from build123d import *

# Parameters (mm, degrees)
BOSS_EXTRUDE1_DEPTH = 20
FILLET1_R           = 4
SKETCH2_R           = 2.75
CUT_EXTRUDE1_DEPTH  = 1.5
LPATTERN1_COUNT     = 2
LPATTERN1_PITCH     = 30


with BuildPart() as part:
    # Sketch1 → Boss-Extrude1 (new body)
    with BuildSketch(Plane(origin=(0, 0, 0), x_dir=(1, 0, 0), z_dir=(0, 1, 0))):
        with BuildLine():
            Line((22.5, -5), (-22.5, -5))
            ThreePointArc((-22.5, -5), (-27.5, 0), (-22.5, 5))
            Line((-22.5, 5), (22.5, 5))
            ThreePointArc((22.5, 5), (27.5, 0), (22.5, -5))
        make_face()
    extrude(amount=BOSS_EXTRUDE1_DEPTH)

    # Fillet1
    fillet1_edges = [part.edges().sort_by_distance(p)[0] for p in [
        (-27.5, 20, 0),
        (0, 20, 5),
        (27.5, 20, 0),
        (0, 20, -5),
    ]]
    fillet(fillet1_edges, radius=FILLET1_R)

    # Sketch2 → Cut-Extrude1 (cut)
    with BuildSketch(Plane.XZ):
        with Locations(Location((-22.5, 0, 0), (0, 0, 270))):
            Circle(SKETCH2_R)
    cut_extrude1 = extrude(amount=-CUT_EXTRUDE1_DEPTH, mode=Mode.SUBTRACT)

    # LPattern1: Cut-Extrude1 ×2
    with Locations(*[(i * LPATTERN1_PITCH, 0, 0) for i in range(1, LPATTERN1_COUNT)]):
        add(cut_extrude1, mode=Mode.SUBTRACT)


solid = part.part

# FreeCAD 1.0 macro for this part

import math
import FreeCAD as App
import Part
import Sketcher

V = App.Vector
Q = App.Units.Quantity


def edges_at(feature, points):
    """Names of the edges that pass closest to the given points."""
    edges = feature.Shape.Edges
    near = lambda p: min(range(len(edges)), key=lambda i: edges[i].distToShape(Part.Vertex(*p))[0])
    return sorted({f"Edge{near(p) + 1}" for p in points})

doc = App.newDocument("Part")
params = doc.addObject("Spreadsheet::Sheet", "Params")
for row, (alias, value) in enumerate([
    ("sketch1_radius", "5 mm"),
    ("sketch1_width", "45 mm"),
    ("pad1_length", "20 mm"),
    ("fillet_radius", "4 mm"),
    ("sketch2_diameter", "5.5 mm"),
    ("pocket1_length", "1.5 mm"),
    ("linearpattern_pitch", "30 mm"),
], start=1):
    params.set(f"A{row}", alias)
    params.set(f"B{row}", "=" + value)
    params.setAlias(f"B{row}", alias)

body = doc.addObject("PartDesign::Body", "Body")

# Sketch on XZ plane
sketch1 = body.newObject("Sketcher::SketchObject", "Sketch")
sketch1.AttachmentSupport = (doc.getObject("XZ_Plane"), [""])
sketch1.MapMode = "FlatFace"
sketch1.addGeometry([
    Part.LineSegment(V(-22, 5, 0), V(22, 5, 0)),
    Part.ArcOfCircle(Part.Circle(V(22, 0, 0), V(0, 0, 1), 5), math.radians(-90), math.radians(90)),
    Part.LineSegment(V(22, -5, 0), V(-22, -5, 0)),
    Part.ArcOfCircle(Part.Circle(V(-22, 0, 0), V(0, 0, 1), 5), math.radians(90), math.radians(270)),
], False)
sketch1.addConstraint([
    Sketcher.Constraint("Tangent", 0, 2, 1, 2),
    Sketcher.Constraint("Tangent", 1, 1, 2, 1),
    Sketcher.Constraint("Tangent", 2, 2, 3, 2),
    Sketcher.Constraint("Tangent", 3, 1, 0, 1),
    Sketcher.Constraint("Horizontal", 0),
    Sketcher.Constraint("Horizontal", 2),
    Sketcher.Constraint("Symmetric", 1, 3, 3, 3, -1, 1),
    Sketcher.Constraint("Radius", 1, Q("5 mm")),
    Sketcher.Constraint("DistanceX", 0, 1, 0, 2, Q("45 mm")),
])
sketch1.setExpression("Constraints[7]", "Params.sketch1_radius")
sketch1.setExpression("Constraints[8]", "Params.sketch1_width")
pad1 = body.newObject("PartDesign::Pad", "Pad")
pad1.Profile = sketch1
pad1.setExpression("Length", "Params.pad1_length")
pad1.Reversed = True
doc.recompute()

fillet = body.newObject("PartDesign::Fillet", "Fillet")
fillet.Base = (pad1, edges_at(pad1, [
    (-27.5, 20, 0),
    (0, 20, 5),
    (27.5, 20, 0),
    (0, 20, -5),
]))
fillet.setExpression("Radius", "Params.fillet_radius")

# Sketch on XZ plane
sketch2 = body.newObject("Sketcher::SketchObject", "Sketch001")
sketch2.AttachmentSupport = (doc.getObject("XZ_Plane"), [""])
sketch2.MapMode = "FlatFace"
sketch2.addGeometry(Part.Circle(V(-22.5, 0, 0), V(0, 0, 1), 2.8), False)
sketch2.addConstraint([
    Sketcher.Constraint("PointOnObject", 0, 3, -1),
    Sketcher.Constraint("Diameter", 0, Q("5.5 mm")),
    Sketcher.Constraint("DistanceX", 0, 3, -1, 1, Q("22.5 mm")),
])
sketch2.setExpression("Constraints[1]", "Params.sketch2_diameter")
pocket1 = body.newObject("PartDesign::Pocket", "Pocket")
pocket1.Profile = sketch2
pocket1.setExpression("Length", "Params.pocket1_length")
doc.recompute()

linearpattern = body.newObject("PartDesign::LinearPattern", "LinearPattern")
linearpattern.Originals = [pocket1]
linearpattern.Direction = (doc.getObject("X_Axis"), [""])
linearpattern.Mode = "offset"
linearpattern.setExpression("Offset", "Params.linearpattern_pitch")
linearpattern.Occurrences = 2
body.Tip = linearpattern

doc.recompute()
